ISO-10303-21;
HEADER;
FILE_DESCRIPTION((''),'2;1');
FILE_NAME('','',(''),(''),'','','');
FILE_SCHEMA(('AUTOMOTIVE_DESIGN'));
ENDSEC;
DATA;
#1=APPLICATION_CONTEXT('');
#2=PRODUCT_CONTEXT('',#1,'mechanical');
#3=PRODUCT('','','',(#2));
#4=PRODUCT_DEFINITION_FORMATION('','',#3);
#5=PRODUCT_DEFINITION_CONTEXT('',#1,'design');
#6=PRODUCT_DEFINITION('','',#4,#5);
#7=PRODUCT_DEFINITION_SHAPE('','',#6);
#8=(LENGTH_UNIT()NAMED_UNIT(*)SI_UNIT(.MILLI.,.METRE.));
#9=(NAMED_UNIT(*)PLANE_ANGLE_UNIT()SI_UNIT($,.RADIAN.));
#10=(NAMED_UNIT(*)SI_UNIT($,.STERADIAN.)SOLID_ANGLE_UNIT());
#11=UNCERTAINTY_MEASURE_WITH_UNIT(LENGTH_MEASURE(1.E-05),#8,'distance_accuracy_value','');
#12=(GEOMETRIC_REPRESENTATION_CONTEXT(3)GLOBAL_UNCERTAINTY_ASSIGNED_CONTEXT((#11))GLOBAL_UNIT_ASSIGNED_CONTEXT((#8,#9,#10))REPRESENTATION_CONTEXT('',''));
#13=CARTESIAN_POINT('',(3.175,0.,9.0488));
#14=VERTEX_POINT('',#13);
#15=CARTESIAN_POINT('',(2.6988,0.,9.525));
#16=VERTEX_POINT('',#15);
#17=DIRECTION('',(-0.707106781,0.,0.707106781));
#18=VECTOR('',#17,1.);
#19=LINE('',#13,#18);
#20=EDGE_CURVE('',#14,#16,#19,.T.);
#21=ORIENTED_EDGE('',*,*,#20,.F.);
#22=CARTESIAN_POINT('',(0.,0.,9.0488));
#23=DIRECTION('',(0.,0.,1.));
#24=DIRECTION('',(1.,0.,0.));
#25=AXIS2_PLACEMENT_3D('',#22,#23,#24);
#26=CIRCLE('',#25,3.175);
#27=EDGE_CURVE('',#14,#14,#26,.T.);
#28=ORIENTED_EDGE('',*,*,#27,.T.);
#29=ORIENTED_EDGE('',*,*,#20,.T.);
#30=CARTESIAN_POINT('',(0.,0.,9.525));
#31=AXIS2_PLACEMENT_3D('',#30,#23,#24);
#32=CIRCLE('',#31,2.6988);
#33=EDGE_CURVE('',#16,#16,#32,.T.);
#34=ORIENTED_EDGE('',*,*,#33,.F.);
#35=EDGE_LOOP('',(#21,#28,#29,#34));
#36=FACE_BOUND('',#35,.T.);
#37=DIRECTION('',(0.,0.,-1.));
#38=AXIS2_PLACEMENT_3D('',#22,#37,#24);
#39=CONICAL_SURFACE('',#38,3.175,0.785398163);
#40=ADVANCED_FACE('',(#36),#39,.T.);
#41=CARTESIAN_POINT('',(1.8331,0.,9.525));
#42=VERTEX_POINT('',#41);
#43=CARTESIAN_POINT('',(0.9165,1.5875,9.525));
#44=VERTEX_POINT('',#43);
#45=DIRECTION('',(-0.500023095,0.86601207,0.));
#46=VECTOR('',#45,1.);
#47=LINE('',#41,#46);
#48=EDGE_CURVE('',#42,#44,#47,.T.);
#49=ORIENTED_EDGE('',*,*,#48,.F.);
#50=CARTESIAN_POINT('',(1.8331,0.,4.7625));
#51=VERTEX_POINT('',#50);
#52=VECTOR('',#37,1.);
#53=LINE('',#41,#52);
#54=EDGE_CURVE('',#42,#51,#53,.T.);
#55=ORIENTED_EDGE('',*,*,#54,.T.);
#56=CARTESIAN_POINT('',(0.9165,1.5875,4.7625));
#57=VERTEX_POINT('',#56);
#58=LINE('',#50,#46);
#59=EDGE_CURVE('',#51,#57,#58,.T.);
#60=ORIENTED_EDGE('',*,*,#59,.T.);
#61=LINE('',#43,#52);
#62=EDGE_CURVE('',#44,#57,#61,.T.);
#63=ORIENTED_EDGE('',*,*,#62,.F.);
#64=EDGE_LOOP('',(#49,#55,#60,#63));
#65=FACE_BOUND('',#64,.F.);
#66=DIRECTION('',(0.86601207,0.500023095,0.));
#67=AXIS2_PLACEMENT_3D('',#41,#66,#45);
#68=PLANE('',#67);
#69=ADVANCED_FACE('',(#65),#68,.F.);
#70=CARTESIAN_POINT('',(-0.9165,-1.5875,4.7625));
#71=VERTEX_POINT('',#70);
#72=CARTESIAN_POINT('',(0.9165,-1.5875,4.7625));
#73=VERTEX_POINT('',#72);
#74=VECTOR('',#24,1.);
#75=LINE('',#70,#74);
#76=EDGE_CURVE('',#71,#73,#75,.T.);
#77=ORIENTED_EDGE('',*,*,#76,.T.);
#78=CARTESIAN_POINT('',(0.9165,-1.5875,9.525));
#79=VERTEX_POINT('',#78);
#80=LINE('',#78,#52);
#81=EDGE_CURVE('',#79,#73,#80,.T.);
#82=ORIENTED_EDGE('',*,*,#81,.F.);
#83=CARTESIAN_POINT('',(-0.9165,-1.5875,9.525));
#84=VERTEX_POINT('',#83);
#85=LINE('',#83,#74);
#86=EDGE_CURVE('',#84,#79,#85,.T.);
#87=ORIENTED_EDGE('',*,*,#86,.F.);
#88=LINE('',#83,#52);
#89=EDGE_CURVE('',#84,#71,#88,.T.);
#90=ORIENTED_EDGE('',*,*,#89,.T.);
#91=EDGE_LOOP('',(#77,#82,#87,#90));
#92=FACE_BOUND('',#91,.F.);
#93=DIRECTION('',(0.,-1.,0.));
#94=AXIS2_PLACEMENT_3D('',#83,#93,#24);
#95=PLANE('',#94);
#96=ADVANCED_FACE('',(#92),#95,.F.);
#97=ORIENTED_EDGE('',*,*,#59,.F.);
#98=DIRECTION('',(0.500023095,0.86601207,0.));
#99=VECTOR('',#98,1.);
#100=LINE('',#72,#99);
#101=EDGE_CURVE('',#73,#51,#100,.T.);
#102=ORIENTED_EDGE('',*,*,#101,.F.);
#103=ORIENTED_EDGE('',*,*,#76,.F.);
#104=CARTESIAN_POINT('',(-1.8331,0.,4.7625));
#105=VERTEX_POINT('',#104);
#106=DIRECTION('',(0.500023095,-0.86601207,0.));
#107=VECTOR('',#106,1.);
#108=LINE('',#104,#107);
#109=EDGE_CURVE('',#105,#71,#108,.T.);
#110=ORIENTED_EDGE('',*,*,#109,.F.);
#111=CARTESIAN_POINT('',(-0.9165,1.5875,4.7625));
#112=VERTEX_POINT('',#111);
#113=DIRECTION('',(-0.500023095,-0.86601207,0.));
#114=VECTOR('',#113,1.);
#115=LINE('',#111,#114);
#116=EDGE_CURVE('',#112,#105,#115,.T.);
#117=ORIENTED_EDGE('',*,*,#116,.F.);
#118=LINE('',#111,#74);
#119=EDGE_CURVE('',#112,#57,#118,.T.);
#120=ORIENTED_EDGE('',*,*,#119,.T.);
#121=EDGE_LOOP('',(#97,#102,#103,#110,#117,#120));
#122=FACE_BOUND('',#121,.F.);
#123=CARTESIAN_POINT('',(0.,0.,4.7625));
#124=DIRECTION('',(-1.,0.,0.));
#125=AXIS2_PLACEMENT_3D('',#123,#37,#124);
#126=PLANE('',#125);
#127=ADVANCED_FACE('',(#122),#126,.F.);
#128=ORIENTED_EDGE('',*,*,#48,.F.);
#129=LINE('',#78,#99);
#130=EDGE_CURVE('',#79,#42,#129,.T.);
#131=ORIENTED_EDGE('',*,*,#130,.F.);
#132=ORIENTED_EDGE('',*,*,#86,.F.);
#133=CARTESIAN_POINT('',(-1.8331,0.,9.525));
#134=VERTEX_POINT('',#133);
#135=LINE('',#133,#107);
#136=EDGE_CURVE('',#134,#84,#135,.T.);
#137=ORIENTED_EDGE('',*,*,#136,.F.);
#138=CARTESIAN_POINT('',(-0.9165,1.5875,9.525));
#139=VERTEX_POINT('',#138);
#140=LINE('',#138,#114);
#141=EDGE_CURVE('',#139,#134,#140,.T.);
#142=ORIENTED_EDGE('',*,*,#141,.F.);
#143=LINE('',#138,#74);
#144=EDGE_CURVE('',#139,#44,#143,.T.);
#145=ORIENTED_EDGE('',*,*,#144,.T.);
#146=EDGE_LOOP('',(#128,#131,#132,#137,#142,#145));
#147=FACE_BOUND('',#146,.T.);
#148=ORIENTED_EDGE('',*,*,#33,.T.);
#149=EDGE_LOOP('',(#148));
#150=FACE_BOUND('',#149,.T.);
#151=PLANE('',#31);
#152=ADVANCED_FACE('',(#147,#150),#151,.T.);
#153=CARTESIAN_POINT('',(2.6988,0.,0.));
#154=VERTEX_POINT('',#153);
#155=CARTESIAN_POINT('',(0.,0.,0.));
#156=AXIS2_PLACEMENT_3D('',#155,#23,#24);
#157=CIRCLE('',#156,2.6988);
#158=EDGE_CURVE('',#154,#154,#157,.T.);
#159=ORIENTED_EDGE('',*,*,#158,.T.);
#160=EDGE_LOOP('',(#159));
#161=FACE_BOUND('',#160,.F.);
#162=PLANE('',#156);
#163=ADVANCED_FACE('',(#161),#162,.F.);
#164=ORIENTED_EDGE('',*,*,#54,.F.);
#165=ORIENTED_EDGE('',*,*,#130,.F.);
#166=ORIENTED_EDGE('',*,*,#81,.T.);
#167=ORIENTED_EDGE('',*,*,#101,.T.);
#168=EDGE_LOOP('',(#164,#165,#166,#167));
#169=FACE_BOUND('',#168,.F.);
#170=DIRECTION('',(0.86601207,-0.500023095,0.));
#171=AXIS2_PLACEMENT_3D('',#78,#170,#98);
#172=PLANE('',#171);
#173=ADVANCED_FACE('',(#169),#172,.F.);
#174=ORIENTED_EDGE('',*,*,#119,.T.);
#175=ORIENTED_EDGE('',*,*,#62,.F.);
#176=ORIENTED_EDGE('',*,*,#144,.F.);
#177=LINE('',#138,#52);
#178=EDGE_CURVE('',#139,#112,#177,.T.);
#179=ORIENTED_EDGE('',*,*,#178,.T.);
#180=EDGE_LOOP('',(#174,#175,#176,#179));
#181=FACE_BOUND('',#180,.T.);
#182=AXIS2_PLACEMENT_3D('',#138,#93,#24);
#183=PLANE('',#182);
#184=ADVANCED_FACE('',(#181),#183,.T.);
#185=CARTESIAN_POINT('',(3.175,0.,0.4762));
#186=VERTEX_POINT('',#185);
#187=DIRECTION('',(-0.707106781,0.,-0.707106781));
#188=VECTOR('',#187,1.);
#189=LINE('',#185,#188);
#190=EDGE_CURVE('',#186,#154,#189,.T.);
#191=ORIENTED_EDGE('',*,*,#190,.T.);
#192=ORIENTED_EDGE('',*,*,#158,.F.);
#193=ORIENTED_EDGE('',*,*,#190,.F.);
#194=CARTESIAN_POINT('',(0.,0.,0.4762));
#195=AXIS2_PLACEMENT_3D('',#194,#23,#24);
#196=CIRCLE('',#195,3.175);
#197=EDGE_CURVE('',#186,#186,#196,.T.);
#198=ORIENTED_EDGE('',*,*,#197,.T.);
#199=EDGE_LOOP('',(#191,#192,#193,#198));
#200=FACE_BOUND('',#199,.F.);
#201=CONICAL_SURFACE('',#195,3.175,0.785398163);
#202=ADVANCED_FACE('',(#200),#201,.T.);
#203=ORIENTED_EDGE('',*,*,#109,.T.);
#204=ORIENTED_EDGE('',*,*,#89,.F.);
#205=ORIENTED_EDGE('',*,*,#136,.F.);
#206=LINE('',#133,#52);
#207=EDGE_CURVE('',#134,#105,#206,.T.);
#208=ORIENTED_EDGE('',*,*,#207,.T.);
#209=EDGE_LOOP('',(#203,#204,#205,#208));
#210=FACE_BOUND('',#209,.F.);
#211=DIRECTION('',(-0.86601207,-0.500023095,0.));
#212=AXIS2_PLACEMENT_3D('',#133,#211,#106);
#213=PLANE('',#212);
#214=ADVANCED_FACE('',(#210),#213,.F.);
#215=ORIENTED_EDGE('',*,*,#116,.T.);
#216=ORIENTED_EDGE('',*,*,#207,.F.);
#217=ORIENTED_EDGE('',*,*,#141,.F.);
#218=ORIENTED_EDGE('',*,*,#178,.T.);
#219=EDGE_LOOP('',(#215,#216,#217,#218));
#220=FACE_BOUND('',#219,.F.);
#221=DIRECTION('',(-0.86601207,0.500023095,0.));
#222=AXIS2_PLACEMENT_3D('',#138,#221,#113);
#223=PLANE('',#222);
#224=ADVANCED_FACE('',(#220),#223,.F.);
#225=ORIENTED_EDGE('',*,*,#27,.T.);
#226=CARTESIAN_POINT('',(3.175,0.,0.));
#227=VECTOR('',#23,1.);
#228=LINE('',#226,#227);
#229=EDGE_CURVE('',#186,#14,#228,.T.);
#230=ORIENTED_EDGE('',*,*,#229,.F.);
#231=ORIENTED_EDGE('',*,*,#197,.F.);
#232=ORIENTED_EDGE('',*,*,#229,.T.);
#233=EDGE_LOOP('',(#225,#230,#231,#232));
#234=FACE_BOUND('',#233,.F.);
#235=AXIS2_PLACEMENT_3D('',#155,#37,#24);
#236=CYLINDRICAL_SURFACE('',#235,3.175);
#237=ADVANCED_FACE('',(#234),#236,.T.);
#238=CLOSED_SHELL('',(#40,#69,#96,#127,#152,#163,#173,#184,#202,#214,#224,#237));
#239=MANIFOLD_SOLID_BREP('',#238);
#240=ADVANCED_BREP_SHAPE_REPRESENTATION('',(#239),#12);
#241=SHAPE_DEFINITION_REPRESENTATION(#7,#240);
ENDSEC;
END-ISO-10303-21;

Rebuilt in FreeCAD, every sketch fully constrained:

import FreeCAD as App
import Part
import Sketcher
Q = App.Units.Quantity


def edges_at(feature, points):
    """Names of the edges that pass closest to the given points."""
    edges = feature.Shape.Edges
    near = lambda p: min(range(len(edges)), key=lambda i: edges[i].distToShape(Part.Vertex(*p))[0])
    return sorted({f"Edge{near(p) + 1}" for p in points})


def add_polygon(sketch, points):
    """Adds a closed chain of lines whose ends are joined by coincident constraints."""
    first, n = sketch.GeometryCount, len(points)
    for a, b in zip(points, points[1:] + points[:1]):
        sketch.addGeometry(Part.LineSegment(App.Vector(*a, 0), App.Vector(*b, 0)), False)
    for i in range(n):
        sketch.addConstraint(Sketcher.Constraint("Coincident", first + i, 2, first + (i + 1) % n, 1))

doc = App.newDocument("Part")
params = doc.addObject("Spreadsheet::Sheet", "Params")
for row, (alias, value) in enumerate([
    ("sketch1_diameter", "0.25 in"),
    ("pad1_length", "0.375 in"),
    ("chamfer_size", "0.4762 mm"),
    ("pocket1_length", "0.1875 in"),
], start=1):
    params.set(f"A{row}", alias)
    params.set(f"B{row}", "=" + value)
    params.setAlias(f"B{row}", alias)

body = doc.addObject("PartDesign::Body", "Body")

# Sketch on XY plane
sketch1 = body.newObject("Sketcher::SketchObject", "Sketch")
sketch1.AttachmentSupport = (doc.getObject("XY_Plane"), [""])
sketch1.MapMode = "FlatFace"
sketch1.addGeometry(Part.Circle(App.Vector(0, 0, 0), App.Vector(0, 0, 1), 3.2), False)
sketch1.addConstraint(Sketcher.Constraint("Coincident", 0, 3, -1, 1))
sketch1.addConstraint(Sketcher.Constraint("Diameter", 0, Q("0.25 in")))
sketch1.setExpression("Constraints[1]", "Params.sketch1_diameter")
pad1 = body.newObject("PartDesign::Pad", "Pad")
pad1.Profile = sketch1
pad1.setExpression("Length", "Params.pad1_length")
doc.recompute()

chamfer = body.newObject("PartDesign::Chamfer", "Chamfer")
chamfer.Base = (pad1, edges_at(pad1, [(-3.175, 0, 0), (-3.175, 0, 9.525)]))
chamfer.setExpression("Size", "Params.chamfer_size")

# Sketch on XY plane
sketch2 = body.newObject("Sketcher::SketchObject", "Sketch001")
sketch2.AttachmentSupport = (doc.getObject("XY_Plane"), [""])
sketch2.MapMode = "FlatFace"
sketch2.AttachmentOffset = App.Placement(App.Vector(0, 0, 0.375 * 25.4), App.Rotation())
add_polygon(sketch2, [(0.9, 1.6), (-0.9, 1.6), (-1.8, 0), (-0.9, -1.6), (0.9, -1.6), (1.8, 0)])  # lines 0-5
sketch2.addConstraint(Sketcher.Constraint("Horizontal", 0))
sketch2.addConstraint(Sketcher.Constraint("Horizontal", 3))
sketch2.addConstraint(Sketcher.Constraint("Symmetric", 0, 2, 3, 2, -1, 1))
sketch2.addConstraint(Sketcher.Constraint("Symmetric", 1, 2, 4, 2, -1, 1))
sketch2.addConstraint(Sketcher.Constraint("PointOnObject", 1, 2, -1))
sketch2.addConstraint(Sketcher.Constraint("Parallel", 2, 5))
sketch2.addConstraint(Sketcher.Constraint("Vertical", 0, 2, 2, 2))
sketch2.addConstraint(Sketcher.Constraint("DistanceY", -1, 1, 0, 2, Q("0.0625 in")))
sketch2.addConstraint(Sketcher.Constraint("DistanceX", 0, 2, 0, 1, Q("1.833 mm")))
sketch2.addConstraint(Sketcher.Constraint("Distance", 1, Q("1.833 mm")))
pocket1 = body.newObject("PartDesign::Pocket", "Pocket")
pocket1.Profile = sketch2
pocket1.setExpression("Length", "Params.pocket1_length")

doc.recompute()
